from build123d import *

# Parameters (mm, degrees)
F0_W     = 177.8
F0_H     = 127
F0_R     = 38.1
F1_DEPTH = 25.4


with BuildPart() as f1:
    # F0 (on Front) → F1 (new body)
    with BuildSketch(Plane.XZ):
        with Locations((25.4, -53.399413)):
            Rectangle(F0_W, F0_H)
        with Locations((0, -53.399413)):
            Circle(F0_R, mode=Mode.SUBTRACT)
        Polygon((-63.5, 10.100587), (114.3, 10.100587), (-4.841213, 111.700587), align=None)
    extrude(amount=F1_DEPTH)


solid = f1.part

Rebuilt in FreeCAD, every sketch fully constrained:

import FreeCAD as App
import Part
import Sketcher
Q = App.Units.Quantity

doc = App.newDocument("Part")
body = doc.addObject("PartDesign::Body", "Body")

sketch1 = body.newObject("Sketcher::SketchObject", "Sketch")
sketch1.AttachmentSupport = (doc.getObject("XZ_Plane"), [""])
sketch1.MapMode = "FlatFace"
sketch1.addGeometry([
    Part.LineSegment(App.Vector(-64, 10, 0), App.Vector(-64, -117, 0)),
    Part.LineSegment(App.Vector(-64, -117, 0), App.Vector(114, -117, 0)),
    Part.LineSegment(App.Vector(114, -117, 0), App.Vector(114, 10, 0)),
    Part.LineSegment(App.Vector(114, 10, 0), App.Vector(-5, 112, 0)),
    Part.LineSegment(App.Vector(-5, 112, 0), App.Vector(-64, 10, 0)),
    Part.Circle(App.Vector(0, -53, 0), App.Vector(0, 0, 1), 38),
], False)
sketch1.addConstraint([
    Sketcher.Constraint("Coincident", 0, 2, 1, 1),
    Sketcher.Constraint("Coincident", 1, 2, 2, 1),
    Sketcher.Constraint("Coincident", 2, 2, 3, 1),
    Sketcher.Constraint("Coincident", 3, 2, 4, 1),
    Sketcher.Constraint("Coincident", 4, 2, 0, 1),
    Sketcher.Constraint("Vertical", 0),
    Sketcher.Constraint("Horizontal", 1),
    Sketcher.Constraint("Vertical", 2),
    Sketcher.Constraint("PointOnObject", 5, 3, -2),
    Sketcher.Constraint("Horizontal", 2, 2, 4, 2),
    Sketcher.Constraint("Diameter", 5, Q("3 in")),
    Sketcher.Constraint("DistanceX", 1, 1, 1, 2, Q("7 in")),
    Sketcher.Constraint("DistanceY", 0, 2, 0, 1, Q("5 in")),
    Sketcher.Constraint("Angle", 4, Q("-120 deg")),
    Sketcher.Constraint("DistanceY", 2, 2, 3, 2, Q("4 in")),
    Sketcher.Constraint("DistanceX", 0, 2, -1, 1, Q("2.5 in")),
    Sketcher.Constraint("DistanceY", 0, 2, 5, 3, Q("2.5 in")),
    Sketcher.Constraint("DistanceY", 5, 3, -1, 1, 53.399413),
])
pad1 = body.newObject("PartDesign::Pad", "Pad")
pad1.Profile = sketch1
pad1.Length = Q("1 in")

doc.recompute()
